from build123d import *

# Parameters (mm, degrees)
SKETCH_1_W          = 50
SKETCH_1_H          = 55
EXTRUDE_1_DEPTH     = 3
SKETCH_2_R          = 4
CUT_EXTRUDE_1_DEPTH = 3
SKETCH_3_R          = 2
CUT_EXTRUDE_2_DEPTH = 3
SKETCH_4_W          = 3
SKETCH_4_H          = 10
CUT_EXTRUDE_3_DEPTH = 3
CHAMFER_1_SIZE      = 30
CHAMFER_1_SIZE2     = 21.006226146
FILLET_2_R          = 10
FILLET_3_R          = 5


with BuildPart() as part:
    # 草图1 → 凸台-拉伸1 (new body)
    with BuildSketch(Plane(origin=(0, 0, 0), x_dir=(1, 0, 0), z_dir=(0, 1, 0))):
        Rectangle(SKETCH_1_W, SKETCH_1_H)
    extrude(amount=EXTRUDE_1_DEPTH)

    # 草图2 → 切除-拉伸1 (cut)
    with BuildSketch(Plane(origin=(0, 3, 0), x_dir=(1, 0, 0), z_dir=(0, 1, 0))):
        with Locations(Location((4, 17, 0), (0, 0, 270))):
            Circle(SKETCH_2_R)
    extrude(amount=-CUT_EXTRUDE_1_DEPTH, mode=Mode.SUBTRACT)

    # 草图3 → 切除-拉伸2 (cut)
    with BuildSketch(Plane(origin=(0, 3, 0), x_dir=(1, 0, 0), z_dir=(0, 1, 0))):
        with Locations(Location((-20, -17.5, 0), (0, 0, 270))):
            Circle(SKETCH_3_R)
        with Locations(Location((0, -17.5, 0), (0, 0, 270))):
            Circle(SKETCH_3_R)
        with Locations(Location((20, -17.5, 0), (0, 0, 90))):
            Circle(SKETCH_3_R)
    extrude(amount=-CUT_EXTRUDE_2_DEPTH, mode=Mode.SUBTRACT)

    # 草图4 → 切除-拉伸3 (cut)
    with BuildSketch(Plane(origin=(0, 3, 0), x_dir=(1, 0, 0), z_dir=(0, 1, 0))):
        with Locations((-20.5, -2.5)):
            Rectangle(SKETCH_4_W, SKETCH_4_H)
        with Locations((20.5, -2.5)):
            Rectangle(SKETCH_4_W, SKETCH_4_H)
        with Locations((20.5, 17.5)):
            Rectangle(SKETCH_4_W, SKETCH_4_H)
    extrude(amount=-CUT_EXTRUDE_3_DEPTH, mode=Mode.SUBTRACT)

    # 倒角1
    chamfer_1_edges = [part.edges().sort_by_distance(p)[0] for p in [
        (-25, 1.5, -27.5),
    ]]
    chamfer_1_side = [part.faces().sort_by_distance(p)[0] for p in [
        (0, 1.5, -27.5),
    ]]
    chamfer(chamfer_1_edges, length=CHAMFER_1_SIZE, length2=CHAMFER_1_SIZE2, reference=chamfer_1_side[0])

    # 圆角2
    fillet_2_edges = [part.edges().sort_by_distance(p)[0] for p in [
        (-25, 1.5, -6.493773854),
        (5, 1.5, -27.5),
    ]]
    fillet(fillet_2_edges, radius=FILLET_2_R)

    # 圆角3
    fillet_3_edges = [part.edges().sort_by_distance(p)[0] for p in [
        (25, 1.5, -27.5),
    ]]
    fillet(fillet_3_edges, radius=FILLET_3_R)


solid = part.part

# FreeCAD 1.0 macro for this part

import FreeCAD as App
import Part
import Sketcher
from FreeCAD import Vector


def edges_at(feature, points):
    """Names of the edges that pass closest to the given points."""
    edges = feature.Shape.Edges
    near = lambda p: min(range(len(edges)), key=lambda i: edges[i].distToShape(Part.Vertex(*p))[0])
    return sorted({f"Edge{near(p) + 1}" for p in points})


def add_polygon(sketch, points):
    """Adds a closed chain of lines whose ends are joined by coincident constraints."""
    first, n = sketch.GeometryCount, len(points)
    for a, b in zip(points, points[1:] + points[:1]):
        sketch.addGeometry(Part.LineSegment(App.Vector(*a, 0), App.Vector(*b, 0)), False)
    for i in range(n):
        sketch.addConstraint(Sketcher.Constraint("Coincident", first + i, 2, first + (i + 1) % n, 1))

doc = App.newDocument("Part")
body = doc.addObject("PartDesign::Body", "Body")

# Sketch on XZ plane
sketch1 = body.newObject("Sketcher::SketchObject", "Sketch")
sketch1.AttachmentSupport = (doc.getObject("XZ_Plane"), [""])
sketch1.MapMode = "FlatFace"
add_polygon(sketch1, [(-25, -28), (-25, 28), (25, 28), (25, -28)])  # lines 0-3
sketch1.addConstraint(Sketcher.Constraint("Vertical", 0))
sketch1.addConstraint(Sketcher.Constraint("Horizontal", 1))
sketch1.addConstraint(Sketcher.Constraint("Vertical", 2))
sketch1.addConstraint(Sketcher.Constraint("Horizontal", 3))
sketch1.addConstraint(Sketcher.Constraint("Symmetric", 0, 2, 2, 2, -1, 1))
sketch1.addConstraint(Sketcher.Constraint("DistanceX", 1, 1, 1, 2, 50.0))
sketch1.addConstraint(Sketcher.Constraint("DistanceY", 0, 1, 0, 2, 55.0))
pad1 = body.newObject("PartDesign::Pad", "Pad")
pad1.Profile = sketch1
pad1.Length = 3
pad1.Reversed = True

# Sketch on XZ plane
sketch2 = body.newObject("Sketcher::SketchObject", "Sketch001")
sketch2.AttachmentSupport = (doc.getObject("XZ_Plane"), [""])
sketch2.MapMode = "FlatFace"
sketch2.AttachmentOffset = App.Placement(Vector(0, 0, -3), App.Rotation())
sketch2.addGeometry(Part.Circle(Vector(4, -17, 0), Vector(0, 0, 1), 4), False)
sketch2.addConstraint(Sketcher.Constraint("Diameter", 0, 8.0))
sketch2.addConstraint(Sketcher.Constraint("DistanceX", -1, 1, 0, 3, 4.0))
sketch2.addConstraint(Sketcher.Constraint("DistanceY", 0, 3, -1, 1, 17.0))
pocket1 = body.newObject("PartDesign::Pocket", "Pocket")
pocket1.Profile = sketch2
pocket1.Length = 3
pocket1.Reversed = True

# Sketch on XZ plane
sketch3 = body.newObject("Sketcher::SketchObject", "Sketch002")
sketch3.AttachmentSupport = (doc.getObject("XZ_Plane"), [""])
sketch3.MapMode = "FlatFace"
sketch3.AttachmentOffset = App.Placement(Vector(0, 0, -3), App.Rotation())
sketch3.addGeometry(Part.Circle(Vector(-20, 17.5, 0), Vector(0, 0, 1), 2), False)
sketch3.addGeometry(Part.Circle(Vector(0, 17.5, 0), Vector(0, 0, 1), 2), False)
sketch3.addGeometry(Part.Circle(Vector(20, 17.5, 0), Vector(0, 0, 1), 2), False)
sketch3.addConstraint(Sketcher.Constraint("Equal", 0, 1))
sketch3.addConstraint(Sketcher.Constraint("Equal", 1, 2))
sketch3.addConstraint(Sketcher.Constraint("Symmetric", 0, 3, 2, 3, -2))
sketch3.addConstraint(Sketcher.Constraint("PointOnObject", 1, 3, -2))
sketch3.addConstraint(Sketcher.Constraint("Horizontal", 0, 3, 1, 3))
sketch3.addConstraint(Sketcher.Constraint("Diameter", 0, 4.0))
sketch3.addConstraint(Sketcher.Constraint("DistanceX", 0, 3, -1, 1, 20.0))
sketch3.addConstraint(Sketcher.Constraint("DistanceY", -1, 1, 0, 3, 17.5))
pocket2 = body.newObject("PartDesign::Pocket", "Pocket001")
pocket2.Profile = sketch3
pocket2.Length = 3
pocket2.Reversed = True

# Sketch on XZ plane
sketch4 = body.newObject("Sketcher::SketchObject", "Sketch003")
sketch4.AttachmentSupport = (doc.getObject("XZ_Plane"), [""])
sketch4.MapMode = "FlatFace"
sketch4.AttachmentOffset = App.Placement(Vector(0, 0, -3), App.Rotation())
add_polygon(sketch4, [(-22, -2.5), (-22, 7.5), (-19, 7.5), (-19, -2.5)])  # lines 0-3
add_polygon(sketch4, [(19, -2.5), (19, 7.5), (22, 7.5), (22, -2.5)])  # lines 4-7
add_polygon(sketch4, [(19, -22.5), (19, -12.5), (22, -12.5), (22, -22.5)])  # lines 8-11
sketch4.addConstraint(Sketcher.Constraint("Vertical", 0))
sketch4.addConstraint(Sketcher.Constraint("Horizontal", 1))
sketch4.addConstraint(Sketcher.Constraint("Vertical", 2))
sketch4.addConstraint(Sketcher.Constraint("Horizontal", 3))
sketch4.addConstraint(Sketcher.Constraint("Vertical", 4))
sketch4.addConstraint(Sketcher.Constraint("Horizontal", 5))
sketch4.addConstraint(Sketcher.Constraint("Vertical", 6))
sketch4.addConstraint(Sketcher.Constraint("Horizontal", 7))
sketch4.addConstraint(Sketcher.Constraint("Vertical", 8))
sketch4.addConstraint(Sketcher.Constraint("Horizontal", 9))
sketch4.addConstraint(Sketcher.Constraint("Vertical", 10))
sketch4.addConstraint(Sketcher.Constraint("Horizontal", 11))
sketch4.addConstraint(Sketcher.Constraint("Symmetric", 1, 2, 4, 2, -2))
sketch4.addConstraint(Sketcher.Constraint("Symmetric", 3, 2, 6, 2, -2))
sketch4.addConstraint(Sketcher.Constraint("Vertical", 7, 2, 8, 2))
sketch4.addConstraint(Sketcher.Constraint("Vertical", 6, 2, 9, 2))
sketch4.addConstraint(Sketcher.Constraint("Equal", 6, 8))
sketch4.addConstraint(Sketcher.Constraint("DistanceX", 1, 1, 1, 2, 3.0))
sketch4.addConstraint(Sketcher.Constraint("DistanceY", 0, 1, 0, 2, 10.0))
sketch4.addConstraint(Sketcher.Constraint("DistanceX", 0, 2, -1, 1, 22.0))
sketch4.addConstraint(Sketcher.Constraint("DistanceY", 8, 2, 7, 2, 10.0))
sketch4.addConstraint(Sketcher.Constraint("DistanceY", -1, 1, 0, 2, 7.5))
pocket3 = body.newObject("PartDesign::Pocket", "Pocket002")
pocket3.Profile = sketch4
pocket3.Length = 3
pocket3.Reversed = True
doc.recompute()

chamfer = body.newObject("PartDesign::Chamfer", "Chamfer")
chamfer.Base = (pocket3, edges_at(pocket3, [(-25, 1.5, -27.5)]))
chamfer.ChamferType = "Two distances"
chamfer.Size = 30
chamfer.Size2 = 21.006226
chamfer.FlipDirection = True
doc.recompute()

fillet = body.newObject("PartDesign::Fillet", "Fillet")
fillet.Base = (chamfer, edges_at(chamfer, [(-25, 1.5, -6.494), (5, 1.5, -27.5)]))
fillet.Radius = 10
doc.recompute()

fillet2 = body.newObject("PartDesign::Fillet", "Fillet001")
fillet2.Base = (fillet, edges_at(fillet, [(25, 1.5, -27.5)]))
fillet2.Radius = 5

doc.recompute()
